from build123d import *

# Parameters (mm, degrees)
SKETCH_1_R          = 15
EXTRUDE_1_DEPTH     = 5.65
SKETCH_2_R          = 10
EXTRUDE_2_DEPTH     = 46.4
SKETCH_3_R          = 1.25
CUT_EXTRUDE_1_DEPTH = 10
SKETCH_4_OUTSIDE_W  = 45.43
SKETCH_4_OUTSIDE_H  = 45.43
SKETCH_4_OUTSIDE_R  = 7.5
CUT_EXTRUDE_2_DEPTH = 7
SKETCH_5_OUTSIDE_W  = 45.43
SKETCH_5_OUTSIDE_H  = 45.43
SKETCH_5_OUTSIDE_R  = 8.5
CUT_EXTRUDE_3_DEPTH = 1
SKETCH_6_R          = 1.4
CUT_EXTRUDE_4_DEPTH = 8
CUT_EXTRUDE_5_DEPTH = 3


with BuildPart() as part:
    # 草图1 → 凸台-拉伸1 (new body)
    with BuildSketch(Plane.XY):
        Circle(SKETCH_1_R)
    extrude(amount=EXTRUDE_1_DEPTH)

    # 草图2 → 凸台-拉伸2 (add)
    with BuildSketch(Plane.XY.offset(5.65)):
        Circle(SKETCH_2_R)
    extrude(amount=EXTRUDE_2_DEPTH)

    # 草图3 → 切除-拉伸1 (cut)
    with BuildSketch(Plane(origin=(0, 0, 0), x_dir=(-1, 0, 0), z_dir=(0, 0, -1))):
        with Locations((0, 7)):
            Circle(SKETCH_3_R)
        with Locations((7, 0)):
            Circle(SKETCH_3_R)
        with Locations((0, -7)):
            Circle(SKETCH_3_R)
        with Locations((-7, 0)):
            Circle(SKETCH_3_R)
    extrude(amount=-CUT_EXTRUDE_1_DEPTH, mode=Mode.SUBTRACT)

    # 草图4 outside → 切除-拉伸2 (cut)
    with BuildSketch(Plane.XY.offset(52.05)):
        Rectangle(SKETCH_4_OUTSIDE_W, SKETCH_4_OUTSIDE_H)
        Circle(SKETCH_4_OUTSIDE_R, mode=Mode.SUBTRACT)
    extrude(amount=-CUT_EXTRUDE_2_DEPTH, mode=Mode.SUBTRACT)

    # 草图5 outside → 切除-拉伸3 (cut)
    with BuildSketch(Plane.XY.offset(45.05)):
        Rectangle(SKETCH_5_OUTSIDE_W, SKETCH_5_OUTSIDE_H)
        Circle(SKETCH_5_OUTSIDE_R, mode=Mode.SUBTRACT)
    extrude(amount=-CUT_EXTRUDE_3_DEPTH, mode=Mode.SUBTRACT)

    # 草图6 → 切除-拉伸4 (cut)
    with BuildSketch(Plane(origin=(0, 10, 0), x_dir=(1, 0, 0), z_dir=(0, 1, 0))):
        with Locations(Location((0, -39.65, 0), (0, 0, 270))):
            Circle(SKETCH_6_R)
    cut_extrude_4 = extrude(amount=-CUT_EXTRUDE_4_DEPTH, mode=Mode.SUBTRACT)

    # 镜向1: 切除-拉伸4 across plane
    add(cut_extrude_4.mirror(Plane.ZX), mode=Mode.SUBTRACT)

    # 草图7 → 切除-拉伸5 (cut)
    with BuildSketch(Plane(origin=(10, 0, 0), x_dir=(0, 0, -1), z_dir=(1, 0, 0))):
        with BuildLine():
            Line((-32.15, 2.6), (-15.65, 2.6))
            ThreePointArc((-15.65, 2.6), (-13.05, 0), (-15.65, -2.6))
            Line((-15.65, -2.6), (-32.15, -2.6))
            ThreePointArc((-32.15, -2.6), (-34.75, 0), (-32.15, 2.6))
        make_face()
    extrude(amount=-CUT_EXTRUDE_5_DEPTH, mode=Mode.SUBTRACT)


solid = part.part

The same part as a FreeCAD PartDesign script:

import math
import FreeCAD as App
import Part
import Sketcher

V = App.Vector
Q = App.Units.Quantity

doc = App.newDocument("Part")
body = doc.addObject("PartDesign::Body", "Body")

sketch1 = doc.addObject("Sketcher::SketchObject", "Sketch")
body.addObject(sketch1)
sketch1.AttachmentSupport = (doc.XY_Plane, [""])
sketch1.MapMode = "FlatFace"
sketch1.addGeometry(Part.Circle(V(0, 0, 0), V(0, 0, 1), 15), False)
sketch1.addConstraint([
    Sketcher.Constraint("Coincident", 0, 3, -1, 1),
    Sketcher.Constraint("Diameter", 0, Q("30 mm")),
])
pad1 = doc.addObject("PartDesign::Pad", "Pad")
body.addObject(pad1)
pad1.Profile = sketch1
pad1.Length = 5.65

sketch2 = doc.addObject("Sketcher::SketchObject", "Sketch001")
body.addObject(sketch2)
sketch2.AttachmentSupport = (doc.XY_Plane, [""])
sketch2.MapMode = "FlatFace"
sketch2.AttachmentOffset = App.Placement(V(0, 0, 5.65), App.Rotation())
sketch2.addGeometry(Part.Circle(V(0, 0, 0), V(0, 0, 1), 10), False)
sketch2.addConstraint([
    Sketcher.Constraint("Coincident", 0, 3, -1, 1),
    Sketcher.Constraint("Diameter", 0, Q("20 mm")),
])
pad2 = doc.addObject("PartDesign::Pad", "Pad001")
body.addObject(pad2)
pad2.Profile = sketch2
pad2.Length = 46.4

sketch3 = doc.addObject("Sketcher::SketchObject", "Sketch002")
body.addObject(sketch3)
sketch3.AttachmentSupport = (doc.XY_Plane, [""])
sketch3.MapMode = "FlatFace"
sketch3.addGeometry([
    Part.Circle(V(0, 7, 0), V(0, 0, 1), 1.2),
    Part.Circle(V(-7, 0, 0), V(0, 0, 1), 1.2),
    Part.Circle(V(0, -7, 0), V(0, 0, 1), 1.2),
    Part.Circle(V(7, 0, 0), V(0, 0, 1), 1.2),
], False)
sketch3.addConstraint([
    Sketcher.Constraint("Equal", 0, 1),
    Sketcher.Constraint("Equal", 1, 2),
    Sketcher.Constraint("Equal", 2, 3),
    Sketcher.Constraint("Symmetric", 0, 3, 2, 3, -1, 1),
    Sketcher.Constraint("Symmetric", 1, 3, 3, 3, -1, 1),
    Sketcher.Constraint("PointOnObject", 0, 3, -2),
    Sketcher.Constraint("PointOnObject", 1, 3, -1),
    Sketcher.Constraint("Diameter", 0, Q("2.5 mm")),
    Sketcher.Constraint("DistanceY", -1, 1, 0, 3, Q("7 mm")),
    Sketcher.Constraint("DistanceX", 1, 3, -1, 1, Q("7 mm")),
])
pocket1 = doc.addObject("PartDesign::Pocket", "Pocket")
body.addObject(pocket1)
pocket1.Profile = sketch3
pocket1.Length = 10
pocket1.Reversed = True

sketch4 = doc.addObject("Sketcher::SketchObject", "Sketch003")
body.addObject(sketch4)
sketch4.AttachmentSupport = (doc.XY_Plane, [""])
sketch4.MapMode = "FlatFace"
sketch4.AttachmentOffset = App.Placement(V(0, 0, 52.05), App.Rotation())
sketch4.addGeometry([
    Part.LineSegment(V(-23, 23, 0), V(-23, -23, 0)),
    Part.LineSegment(V(-23, -23, 0), V(23, -23, 0)),
    Part.LineSegment(V(23, -23, 0), V(23, 23, 0)),
    Part.LineSegment(V(23, 23, 0), V(-23, 23, 0)),
    Part.Circle(V(0, 0, 0), V(0, 0, 1), 8),
], False)
sketch4.addConstraint([
    Sketcher.Constraint("Coincident", 0, 2, 1, 1),
    Sketcher.Constraint("Coincident", 1, 2, 2, 1),
    Sketcher.Constraint("Coincident", 2, 2, 3, 1),
    Sketcher.Constraint("Coincident", 3, 2, 0, 1),
    Sketcher.Constraint("Vertical", 0),
    Sketcher.Constraint("Horizontal", 1),
    Sketcher.Constraint("Vertical", 2),
    Sketcher.Constraint("Horizontal", 3),
    Sketcher.Constraint("Coincident", 4, 3, -1, 1),
    Sketcher.Constraint("Symmetric", 0, 2, 2, 2, -1, 1),
    Sketcher.Constraint("Equal", 3, 0),
    Sketcher.Constraint("Diameter", 4, Q("15 mm")),
    Sketcher.Constraint("DistanceX", 1, 1, 1, 2, Q("45.43 mm")),
])
pocket2 = doc.addObject("PartDesign::Pocket", "Pocket001")
body.addObject(pocket2)
pocket2.Profile = sketch4
pocket2.Length = 7

sketch5 = doc.addObject("Sketcher::SketchObject", "Sketch004")
body.addObject(sketch5)
sketch5.AttachmentSupport = (doc.XY_Plane, [""])
sketch5.MapMode = "FlatFace"
sketch5.AttachmentOffset = App.Placement(V(0, 0, 45.05), App.Rotation())
sketch5.addGeometry([
    Part.LineSegment(V(-23, 23, 0), V(-23, -23, 0)),
    Part.LineSegment(V(-23, -23, 0), V(23, -23, 0)),
    Part.LineSegment(V(23, -23, 0), V(23, 23, 0)),
    Part.LineSegment(V(23, 23, 0), V(-23, 23, 0)),
    Part.Circle(V(0, 0, 0), V(0, 0, 1), 8),
], False)
sketch5.addConstraint([
    Sketcher.Constraint("Coincident", 0, 2, 1, 1),
    Sketcher.Constraint("Coincident", 1, 2, 2, 1),
    Sketcher.Constraint("Coincident", 2, 2, 3, 1),
    Sketcher.Constraint("Coincident", 3, 2, 0, 1),
    Sketcher.Constraint("Vertical", 0),
    Sketcher.Constraint("Horizontal", 1),
    Sketcher.Constraint("Vertical", 2),
    Sketcher.Constraint("Horizontal", 3),
    Sketcher.Constraint("Coincident", 4, 3, -1, 1),
    Sketcher.Constraint("Symmetric", 0, 2, 2, 2, -1, 1),
    Sketcher.Constraint("Equal", 3, 0),
    Sketcher.Constraint("Diameter", 4, Q("17 mm")),
    Sketcher.Constraint("DistanceX", 1, 1, 1, 2, Q("45.43 mm")),
])
pocket3 = doc.addObject("PartDesign::Pocket", "Pocket002")
body.addObject(pocket3)
pocket3.Profile = sketch5
pocket3.Length = 1

sketch6 = doc.addObject("Sketcher::SketchObject", "Sketch005")
body.addObject(sketch6)
sketch6.AttachmentSupport = (doc.XZ_Plane, [""])
sketch6.MapMode = "FlatFace"
sketch6.AttachmentOffset = App.Placement(V(0, 0, -10), App.Rotation())
sketch6.addGeometry(Part.Circle(V(0, 39.6, 0), V(0, 0, 1), 1.4), False)
sketch6.addConstraint([
    Sketcher.Constraint("PointOnObject", 0, 3, -2),
    Sketcher.Constraint("Diameter", 0, Q("2.8 mm")),
    Sketcher.Constraint("DistanceY", -1, 1, 0, 3, Q("39.65 mm")),
])
pocket4 = doc.addObject("PartDesign::Pocket", "Pocket003")
body.addObject(pocket4)
pocket4.Profile = sketch6
pocket4.Length = 8
pocket4.Reversed = True
doc.recompute()

mirrored = doc.addObject("PartDesign::Mirrored", "Mirrored")
body.addObject(mirrored)
mirrored.Originals = [pocket4]
mirrored.MirrorPlane = (doc.XZ_Plane, [""])
body.Tip = mirrored

sketch7 = doc.addObject("Sketcher::SketchObject", "Sketch006")
body.addObject(sketch7)
sketch7.AttachmentSupport = (doc.YZ_Plane, [""])
sketch7.MapMode = "FlatFace"
sketch7.AttachmentOffset = App.Placement(V(0, 0, 10), App.Rotation())
sketch7.addGeometry([
    Part.LineSegment(V(2.6, 15.7, 0), V(2.6, 32.1, 0)),
    Part.ArcOfCircle(Part.Circle(V(0, 32.1, 0), V(0, 0, 1), 2.6), math.radians(0), math.radians(180)),
    Part.LineSegment(V(-2.6, 32.1, 0), V(-2.6, 15.7, 0)),
    Part.ArcOfCircle(Part.Circle(V(0, 15.7, 0), V(0, 0, 1), 2.6), math.radians(180), math.radians(360)),
], False)
sketch7.addConstraint([
    Sketcher.Constraint("Tangent", 0, 2, 1, 1),
    Sketcher.Constraint("Tangent", 1, 2, 2, 1),
    Sketcher.Constraint("Tangent", 2, 2, 3, 1),
    Sketcher.Constraint("Tangent", 3, 2, 0, 1),
    Sketcher.Constraint("Vertical", 0),
    Sketcher.Constraint("Vertical", 2),
    Sketcher.Constraint("PointOnObject", 1, 3, -2),
    Sketcher.Constraint("Radius", 1, Q("2.6 mm")),
    Sketcher.Constraint("DistanceY", 0, 1, 0, 2, Q("16.5 mm")),
    Sketcher.Constraint("DistanceY", -1, 1, 1, 3, Q("32.15 mm")),
])
pocket5 = doc.addObject("PartDesign::Pocket", "Pocket004")
body.addObject(pocket5)
pocket5.Profile = sketch7
pocket5.Length = 3

doc.recompute()
